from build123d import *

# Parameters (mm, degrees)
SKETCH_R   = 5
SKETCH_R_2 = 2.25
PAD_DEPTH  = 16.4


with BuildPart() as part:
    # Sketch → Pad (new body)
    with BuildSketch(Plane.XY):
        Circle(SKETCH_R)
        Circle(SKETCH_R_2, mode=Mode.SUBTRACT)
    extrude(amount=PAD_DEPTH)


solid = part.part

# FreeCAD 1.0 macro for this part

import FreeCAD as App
import Part
import Sketcher

V = App.Vector
Q = App.Units.Quantity

doc = App.newDocument("Part")
params = doc.addObject("Spreadsheet::Sheet", "Params")
for row, (alias, value) in enumerate([
    ("sketch1_diameter", "10 mm"),
    ("sketch1_diameter2", "4.5 mm"),
    ("pad1_length", "16.4 mm"),
], start=1):
    params.set(f"A{row}", alias)
    params.set(f"B{row}", "=" + value)
    params.setAlias(f"B{row}", alias)

body = doc.addObject("PartDesign::Body", "Body")

# Sketch on XY plane
sketch1 = doc.addObject("Sketcher::SketchObject", "Sketch")
body.addObject(sketch1)
sketch1.AttachmentSupport = (doc.XY_Plane, [""])
sketch1.MapMode = "FlatFace"
sketch1.addGeometry([
    Part.Circle(V(0, 0, 0), V(0, 0, 1), 5),
    Part.Circle(V(0, 0, 0), V(0, 0, 1), 2.2),
], False)
sketch1.addConstraint([
    Sketcher.Constraint("Coincident", 0, 3, -1, 1),
    Sketcher.Constraint("Coincident", 1, 3, -1, 1),
    Sketcher.Constraint("Diameter", 0, Q("10 mm")),
    Sketcher.Constraint("Diameter", 1, Q("4.5 mm")),
])
sketch1.setExpression("Constraints[2]", "Params.sketch1_diameter")
sketch1.setExpression("Constraints[3]", "Params.sketch1_diameter2")
pad1 = doc.addObject("PartDesign::Pad", "Pad")
body.addObject(pad1)
pad1.Profile = sketch1
pad1.setExpression("Length", "Params.pad1_length")

doc.recompute()
